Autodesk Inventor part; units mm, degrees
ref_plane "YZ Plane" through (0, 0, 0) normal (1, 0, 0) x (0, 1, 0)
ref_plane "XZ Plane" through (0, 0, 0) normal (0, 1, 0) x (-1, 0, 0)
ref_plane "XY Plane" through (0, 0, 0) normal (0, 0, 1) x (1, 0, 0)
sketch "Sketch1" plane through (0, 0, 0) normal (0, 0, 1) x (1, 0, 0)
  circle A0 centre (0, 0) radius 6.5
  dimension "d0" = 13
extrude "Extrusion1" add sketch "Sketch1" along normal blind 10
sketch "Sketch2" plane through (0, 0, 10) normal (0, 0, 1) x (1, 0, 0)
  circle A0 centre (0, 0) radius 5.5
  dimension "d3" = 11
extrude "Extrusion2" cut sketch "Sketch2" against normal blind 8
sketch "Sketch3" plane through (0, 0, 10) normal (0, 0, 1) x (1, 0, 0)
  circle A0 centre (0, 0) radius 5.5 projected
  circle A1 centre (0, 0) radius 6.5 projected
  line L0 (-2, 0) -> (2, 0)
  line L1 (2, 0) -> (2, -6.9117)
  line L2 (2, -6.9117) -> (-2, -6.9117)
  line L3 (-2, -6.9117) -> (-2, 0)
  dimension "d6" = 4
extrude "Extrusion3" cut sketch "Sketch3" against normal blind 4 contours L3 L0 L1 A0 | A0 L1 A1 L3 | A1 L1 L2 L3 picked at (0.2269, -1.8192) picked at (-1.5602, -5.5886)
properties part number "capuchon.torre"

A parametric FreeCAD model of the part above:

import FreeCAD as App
import Part
import Sketcher
from FreeCAD import Vector


def add_polygon(sketch, points):
    """Adds a closed chain of lines whose ends are joined by coincident constraints."""
    first, n = sketch.GeometryCount, len(points)
    for a, b in zip(points, points[1:] + points[:1]):
        sketch.addGeometry(Part.LineSegment(App.Vector(*a, 0), App.Vector(*b, 0)), False)
    for i in range(n):
        sketch.addConstraint(Sketcher.Constraint("Coincident", first + i, 2, first + (i + 1) % n, 1))

doc = App.newDocument("Part")
body = doc.addObject("PartDesign::Body", "Body")

sketch1 = body.newObject("Sketcher::SketchObject", "Sketch")
sketch1.AttachmentSupport = (doc.getObject("XY_Plane"), [""])
sketch1.MapMode = "FlatFace"
sketch1.addGeometry(Part.Circle(Vector(0, 0, 0), Vector(0, 0, 1), 6.5), False)
sketch1.addConstraint([
    Sketcher.Constraint("Coincident", 0, 3, -1, 1),
    Sketcher.Constraint("Diameter", 0, 13.0),
])
pad1 = body.newObject("PartDesign::Pad", "Pad")
pad1.Profile = sketch1
pad1.Length = 10

sketch2 = body.newObject("Sketcher::SketchObject", "Sketch001")
sketch2.AttachmentSupport = (doc.getObject("XY_Plane"), [""])
sketch2.MapMode = "FlatFace"
sketch2.AttachmentOffset = App.Placement(Vector(0, 0, 10), App.Rotation())
sketch2.addGeometry(Part.Circle(Vector(0, 0, 0), Vector(0, 0, 1), 5.5), False)
sketch2.addConstraint([
    Sketcher.Constraint("Coincident", 0, 3, -1, 1),
    Sketcher.Constraint("Diameter", 0, 11.0),
])
pocket1 = body.newObject("PartDesign::Pocket", "Pocket")
pocket1.Profile = sketch2
pocket1.Length = 8

sketch3 = body.newObject("Sketcher::SketchObject", "Sketch002")
sketch3.AttachmentSupport = (doc.getObject("XY_Plane"), [""])
sketch3.MapMode = "FlatFace"
sketch3.AttachmentOffset = App.Placement(Vector(0, 0, 10), App.Rotation())
add_polygon(sketch3, [(-2, 0), (-2, -6.9117), (2, -6.9117), (2, 0)])
sketch3.addConstraint([
    Sketcher.Constraint("Vertical", 0),
    Sketcher.Constraint("Horizontal", 1),
    Sketcher.Constraint("Vertical", 2),
    Sketcher.Constraint("Horizontal", 3),
    Sketcher.Constraint("Symmetric", 2, 2, 3, 2, -1, 1),
    Sketcher.Constraint("DistanceX", 1, 1, 1, 2, 4.0),
    Sketcher.Constraint("DistanceY", 0, 2, 0, 1, 6.9117),
])
pocket2 = body.newObject("PartDesign::Pocket", "Pocket001")
pocket2.Profile = sketch3
pocket2.Length = 4

doc.recompute()
